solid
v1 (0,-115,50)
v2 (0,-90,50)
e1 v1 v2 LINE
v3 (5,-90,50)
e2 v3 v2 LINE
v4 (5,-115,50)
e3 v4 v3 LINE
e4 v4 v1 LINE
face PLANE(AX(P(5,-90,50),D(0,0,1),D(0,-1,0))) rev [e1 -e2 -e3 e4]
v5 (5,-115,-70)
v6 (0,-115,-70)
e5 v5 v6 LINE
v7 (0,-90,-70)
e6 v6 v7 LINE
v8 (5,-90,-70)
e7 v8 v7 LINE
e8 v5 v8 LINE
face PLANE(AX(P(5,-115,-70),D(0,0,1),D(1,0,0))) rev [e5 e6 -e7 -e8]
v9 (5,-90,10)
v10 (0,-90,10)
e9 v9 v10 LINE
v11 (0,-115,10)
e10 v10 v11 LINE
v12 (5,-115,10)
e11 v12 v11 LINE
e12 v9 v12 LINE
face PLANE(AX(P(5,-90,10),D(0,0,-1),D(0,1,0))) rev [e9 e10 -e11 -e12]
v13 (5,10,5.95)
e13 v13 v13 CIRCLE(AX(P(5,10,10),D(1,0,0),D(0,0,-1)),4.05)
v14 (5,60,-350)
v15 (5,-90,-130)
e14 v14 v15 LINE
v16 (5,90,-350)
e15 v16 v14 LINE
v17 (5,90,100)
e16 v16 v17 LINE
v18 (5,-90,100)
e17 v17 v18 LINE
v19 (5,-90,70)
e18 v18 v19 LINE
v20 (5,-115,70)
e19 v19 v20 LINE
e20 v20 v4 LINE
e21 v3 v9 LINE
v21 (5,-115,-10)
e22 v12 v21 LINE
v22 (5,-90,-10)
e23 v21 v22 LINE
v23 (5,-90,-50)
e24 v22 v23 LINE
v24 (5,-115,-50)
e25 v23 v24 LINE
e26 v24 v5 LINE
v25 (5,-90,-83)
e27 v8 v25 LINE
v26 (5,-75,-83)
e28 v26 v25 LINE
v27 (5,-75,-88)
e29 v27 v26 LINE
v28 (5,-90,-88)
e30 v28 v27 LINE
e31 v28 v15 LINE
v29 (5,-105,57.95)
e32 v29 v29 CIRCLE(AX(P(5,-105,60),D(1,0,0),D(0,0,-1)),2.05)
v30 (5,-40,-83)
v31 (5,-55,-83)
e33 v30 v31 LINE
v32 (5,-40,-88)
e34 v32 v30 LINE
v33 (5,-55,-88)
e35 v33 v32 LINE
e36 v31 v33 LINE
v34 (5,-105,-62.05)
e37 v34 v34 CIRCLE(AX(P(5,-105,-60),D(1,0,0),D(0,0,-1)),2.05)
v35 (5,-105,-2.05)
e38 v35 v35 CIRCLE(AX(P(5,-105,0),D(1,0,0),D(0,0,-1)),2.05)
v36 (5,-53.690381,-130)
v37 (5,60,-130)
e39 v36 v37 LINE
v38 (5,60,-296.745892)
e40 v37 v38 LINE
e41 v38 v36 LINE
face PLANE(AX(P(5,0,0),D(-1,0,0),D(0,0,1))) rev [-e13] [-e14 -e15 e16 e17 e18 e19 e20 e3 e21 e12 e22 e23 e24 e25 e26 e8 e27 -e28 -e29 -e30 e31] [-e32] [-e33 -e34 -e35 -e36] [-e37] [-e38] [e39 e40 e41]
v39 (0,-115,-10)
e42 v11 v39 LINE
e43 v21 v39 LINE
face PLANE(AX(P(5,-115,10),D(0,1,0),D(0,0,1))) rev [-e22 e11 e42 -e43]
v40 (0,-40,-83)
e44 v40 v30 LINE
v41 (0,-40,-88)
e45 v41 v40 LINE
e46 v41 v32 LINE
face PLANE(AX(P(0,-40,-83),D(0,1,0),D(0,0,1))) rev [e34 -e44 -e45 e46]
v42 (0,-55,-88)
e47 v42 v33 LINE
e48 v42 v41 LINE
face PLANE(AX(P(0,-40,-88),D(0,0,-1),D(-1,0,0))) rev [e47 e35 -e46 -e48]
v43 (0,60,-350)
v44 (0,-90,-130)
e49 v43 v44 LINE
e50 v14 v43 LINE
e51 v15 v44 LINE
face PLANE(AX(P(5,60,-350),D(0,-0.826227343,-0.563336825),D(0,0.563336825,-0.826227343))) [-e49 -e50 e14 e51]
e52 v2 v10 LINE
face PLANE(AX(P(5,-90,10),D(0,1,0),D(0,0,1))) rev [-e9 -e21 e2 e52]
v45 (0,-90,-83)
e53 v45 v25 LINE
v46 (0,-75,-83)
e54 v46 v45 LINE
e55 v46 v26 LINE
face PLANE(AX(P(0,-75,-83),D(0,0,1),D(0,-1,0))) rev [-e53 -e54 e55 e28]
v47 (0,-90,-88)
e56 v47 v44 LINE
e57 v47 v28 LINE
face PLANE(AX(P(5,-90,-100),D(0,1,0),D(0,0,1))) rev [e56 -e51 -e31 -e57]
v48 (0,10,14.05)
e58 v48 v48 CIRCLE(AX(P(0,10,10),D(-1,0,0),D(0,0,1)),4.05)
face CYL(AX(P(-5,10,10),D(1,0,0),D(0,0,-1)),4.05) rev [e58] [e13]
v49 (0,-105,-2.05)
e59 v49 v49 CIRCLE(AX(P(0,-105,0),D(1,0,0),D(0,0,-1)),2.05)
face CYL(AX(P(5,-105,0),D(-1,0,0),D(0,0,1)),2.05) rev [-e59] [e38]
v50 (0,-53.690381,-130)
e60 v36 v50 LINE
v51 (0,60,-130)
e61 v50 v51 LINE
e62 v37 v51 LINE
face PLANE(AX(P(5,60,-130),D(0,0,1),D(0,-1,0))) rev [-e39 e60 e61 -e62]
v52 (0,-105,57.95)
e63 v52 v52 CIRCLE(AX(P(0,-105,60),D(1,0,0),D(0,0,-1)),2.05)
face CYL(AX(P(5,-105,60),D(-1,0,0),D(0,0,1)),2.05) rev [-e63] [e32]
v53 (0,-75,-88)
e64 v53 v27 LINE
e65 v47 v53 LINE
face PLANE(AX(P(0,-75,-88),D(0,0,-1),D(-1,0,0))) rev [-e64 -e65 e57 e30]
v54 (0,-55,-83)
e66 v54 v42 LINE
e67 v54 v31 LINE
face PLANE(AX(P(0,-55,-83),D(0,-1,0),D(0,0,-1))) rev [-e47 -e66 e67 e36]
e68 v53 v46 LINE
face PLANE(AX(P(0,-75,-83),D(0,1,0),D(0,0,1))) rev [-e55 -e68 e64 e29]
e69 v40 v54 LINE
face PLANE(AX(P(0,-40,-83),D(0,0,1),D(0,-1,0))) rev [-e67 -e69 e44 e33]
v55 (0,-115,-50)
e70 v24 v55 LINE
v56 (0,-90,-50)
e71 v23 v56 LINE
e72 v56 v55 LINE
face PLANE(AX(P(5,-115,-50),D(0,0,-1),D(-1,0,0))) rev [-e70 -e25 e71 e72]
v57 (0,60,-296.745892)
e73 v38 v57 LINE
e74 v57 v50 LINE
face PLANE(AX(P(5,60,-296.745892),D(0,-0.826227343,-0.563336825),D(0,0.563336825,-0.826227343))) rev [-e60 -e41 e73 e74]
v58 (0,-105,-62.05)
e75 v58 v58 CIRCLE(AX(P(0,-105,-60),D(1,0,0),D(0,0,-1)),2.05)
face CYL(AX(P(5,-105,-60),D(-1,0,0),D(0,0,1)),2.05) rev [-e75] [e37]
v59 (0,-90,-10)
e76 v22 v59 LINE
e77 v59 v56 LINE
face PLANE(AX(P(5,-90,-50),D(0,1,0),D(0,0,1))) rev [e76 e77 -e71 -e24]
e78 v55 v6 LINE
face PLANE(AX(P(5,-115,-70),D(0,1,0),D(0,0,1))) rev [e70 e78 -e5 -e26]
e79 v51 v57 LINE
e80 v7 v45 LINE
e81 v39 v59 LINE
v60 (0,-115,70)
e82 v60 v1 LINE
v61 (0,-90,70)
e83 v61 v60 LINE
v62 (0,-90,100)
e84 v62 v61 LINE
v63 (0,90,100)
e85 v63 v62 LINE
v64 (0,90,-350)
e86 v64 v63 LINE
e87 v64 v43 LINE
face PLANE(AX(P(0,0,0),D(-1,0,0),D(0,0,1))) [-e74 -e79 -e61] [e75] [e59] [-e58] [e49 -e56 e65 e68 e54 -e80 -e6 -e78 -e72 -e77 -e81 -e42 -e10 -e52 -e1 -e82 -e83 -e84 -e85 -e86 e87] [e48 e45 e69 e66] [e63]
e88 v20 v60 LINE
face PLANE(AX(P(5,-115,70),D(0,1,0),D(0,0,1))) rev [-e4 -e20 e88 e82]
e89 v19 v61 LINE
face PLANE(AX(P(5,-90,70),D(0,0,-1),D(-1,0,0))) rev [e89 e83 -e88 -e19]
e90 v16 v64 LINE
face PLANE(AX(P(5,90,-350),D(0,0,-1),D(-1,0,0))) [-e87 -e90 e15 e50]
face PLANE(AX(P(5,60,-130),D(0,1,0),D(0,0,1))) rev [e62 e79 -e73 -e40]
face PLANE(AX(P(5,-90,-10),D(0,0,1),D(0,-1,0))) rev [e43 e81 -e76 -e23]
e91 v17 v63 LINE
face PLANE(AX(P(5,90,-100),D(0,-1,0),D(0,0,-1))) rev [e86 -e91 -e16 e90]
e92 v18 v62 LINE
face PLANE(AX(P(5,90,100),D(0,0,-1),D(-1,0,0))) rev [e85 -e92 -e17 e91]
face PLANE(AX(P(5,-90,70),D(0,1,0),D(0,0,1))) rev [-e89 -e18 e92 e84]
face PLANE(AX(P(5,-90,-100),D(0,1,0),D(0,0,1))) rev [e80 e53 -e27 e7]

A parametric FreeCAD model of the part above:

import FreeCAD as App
import Part
import Sketcher

V = App.Vector
Q = App.Units.Quantity


def add_polygon(sketch, points):
    """Adds a closed chain of lines whose ends are joined by coincident constraints."""
    first, n = sketch.GeometryCount, len(points)
    for a, b in zip(points, points[1:] + points[:1]):
        sketch.addGeometry(Part.LineSegment(App.Vector(*a, 0), App.Vector(*b, 0)), False)
    for i in range(n):
        sketch.addConstraint(Sketcher.Constraint("Coincident", first + i, 2, first + (i + 1) % n, 1))

doc = App.newDocument("Part")
params = doc.addObject("Spreadsheet::Sheet", "Params")
for row, (alias, value) in enumerate([
    ("sketch1_diameter", "4.1 mm"),
    ("sketch1_width", "25 mm"),
    ("sketch1_width2", "180 mm"),
    ("sketch1_height", "30 mm"),
    ("sketch1_height2", "20 mm"),
    ("pad1_length", "5 mm"),
    ("sketch2_diameter", "8.1 mm"),
    ("pocket1_length", "10 mm"),
    ("sketch3_width", "15 mm"),
    ("sketch3_height", "5 mm"),
    ("sketch4_width", "30 mm"),
    ("sketch4_width2", "180 mm"),
    ("sketch4_height", "250 mm"),
    ("pad2_length", "5 mm"),
], start=1):
    params.set(f"A{row}", alias)
    params.set(f"B{row}", "=" + value)
    params.setAlias(f"B{row}", alias)

body = doc.addObject("PartDesign::Body", "Body")

sketch1 = body.newObject("Sketcher::SketchObject", "Sketch")
sketch1.AttachmentSupport = (doc.getObject("YZ_Plane"), [""])
sketch1.MapMode = "FlatFace"
add_polygon(sketch1, [(-90, 100), (-90, 70), (-115, 70), (-115, 50), (-90, 50), (-90, 10), (-115, 10), (-115, -10), (-90, -10), (-90, -50), (-115, -50), (-115, -70), (-90, -70), (-90, -100), (90, -100), (90, 100)])
sketch1.addGeometry(Part.Circle(V(-105, -60, 0), V(0, 0, 1), 2), False)
sketch1.addGeometry(Part.Circle(V(-105, 0, 0), V(0, 0, 1), 2), False)
sketch1.addGeometry(Part.Circle(V(-105, 60, 0), V(0, 0, 1), 2), False)
sketch1.addConstraint(Sketcher.Constraint("Vertical", 0))
sketch1.addConstraint(Sketcher.Constraint("Horizontal", 1))
sketch1.addConstraint(Sketcher.Constraint("Vertical", 2))
sketch1.addConstraint(Sketcher.Constraint("Horizontal", 3))
sketch1.addConstraint(Sketcher.Constraint("Vertical", 4))
sketch1.addConstraint(Sketcher.Constraint("Horizontal", 5))
sketch1.addConstraint(Sketcher.Constraint("Vertical", 6))
sketch1.addConstraint(Sketcher.Constraint("Horizontal", 7))
sketch1.addConstraint(Sketcher.Constraint("Vertical", 8))
sketch1.addConstraint(Sketcher.Constraint("Horizontal", 9))
sketch1.addConstraint(Sketcher.Constraint("Vertical", 10))
sketch1.addConstraint(Sketcher.Constraint("Horizontal", 11))
sketch1.addConstraint(Sketcher.Constraint("Vertical", 12))
sketch1.addConstraint(Sketcher.Constraint("Horizontal", 13))
sketch1.addConstraint(Sketcher.Constraint("Vertical", 14))
sketch1.addConstraint(Sketcher.Constraint("Horizontal", 15))
sketch1.addConstraint(Sketcher.Constraint("Equal", 16, 17))
sketch1.addConstraint(Sketcher.Constraint("Equal", 17, 18))
sketch1.addConstraint(Sketcher.Constraint("Symmetric", 12, 2, 14, 2, -1, 1))
sketch1.addConstraint(Sketcher.Constraint("Symmetric", 16, 3, 18, 3, -1))
sketch1.addConstraint(Sketcher.Constraint("Symmetric", 4, 2, 7, 2, -1))
sketch1.addConstraint(Sketcher.Constraint("Symmetric", 2, 2, 9, 2, -1))
sketch1.addConstraint(Sketcher.Constraint("Symmetric", 0, 2, 11, 2, -1))
sketch1.addConstraint(Sketcher.Constraint("PointOnObject", 17, 3, -1))
sketch1.addConstraint(Sketcher.Constraint("Vertical", 16, 3, 17, 3))
sketch1.addConstraint(Sketcher.Constraint("Vertical", 0, 2, 3, 2))
sketch1.addConstraint(Sketcher.Constraint("Vertical", 2, 2, 5, 2))
sketch1.addConstraint(Sketcher.Constraint("Equal", 2, 6))
sketch1.addConstraint(Sketcher.Constraint("Diameter", 16, Q("4.1 mm")))
sketch1.addConstraint(Sketcher.Constraint("DistanceX", 1, 2, 1, 1, Q("25 mm")))
sketch1.addConstraint(Sketcher.Constraint("DistanceX", 13, 1, 13, 2, Q("180 mm")))
sketch1.addConstraint(Sketcher.Constraint("DistanceY", 0, 2, 0, 1, Q("30 mm")))
sketch1.addConstraint(Sketcher.Constraint("DistanceY", 2, 2, 2, 1, Q("20 mm")))
sketch1.addConstraint(Sketcher.Constraint("DistanceY", 4, 2, 4, 1, Q("40 mm")))
sketch1.addConstraint(Sketcher.Constraint("DistanceX", 16, 3, -1, 1, Q("105 mm")))
sketch1.addConstraint(Sketcher.Constraint("DistanceY", 16, 3, -1, 1, Q("60 mm")))
sketch1.setExpression("Constraints[44]", "Params.sketch1_diameter")
sketch1.setExpression("Constraints[45]", "Params.sketch1_width")
sketch1.setExpression("Constraints[46]", "Params.sketch1_width2")
sketch1.setExpression("Constraints[47]", "Params.sketch1_height")
sketch1.setExpression("Constraints[48]", "Params.sketch1_height2")
pad1 = body.newObject("PartDesign::Pad", "Pad")
pad1.Profile = sketch1
pad1.setExpression("Length", "Params.pad1_length")

sketch2 = body.newObject("Sketcher::SketchObject", "Sketch001")
sketch2.AttachmentSupport = (doc.getObject("YZ_Plane"), [""])
sketch2.MapMode = "FlatFace"
sketch2.AttachmentOffset = App.Placement(V(0, 0, 5), App.Rotation())
sketch2.addGeometry(Part.Circle(V(10, 10, 0), V(0, 0, 1), 4), False)
sketch2.addConstraint(Sketcher.Constraint("Diameter", 0, Q("8.1 mm")))
sketch2.addConstraint(Sketcher.Constraint("DistanceX", -1, 1, 0, 3, Q("10 mm")))
sketch2.addConstraint(Sketcher.Constraint("DistanceY", -1, 1, 0, 3, Q("10 mm")))
sketch2.setExpression("Constraints[0]", "Params.sketch2_diameter")
pocket1 = body.newObject("PartDesign::Pocket", "Pocket")
pocket1.Profile = sketch2
pocket1.setExpression("Length", "Params.pocket1_length")

sketch3 = body.newObject("Sketcher::SketchObject", "Sketch002")
sketch3.AttachmentSupport = (doc.getObject("YZ_Plane"), [""])
sketch3.MapMode = "FlatFace"
sketch3.AttachmentOffset = App.Placement(V(0, 0, 5), App.Rotation())
add_polygon(sketch3, [(-40, -83), (-55, -83), (-55, -88), (-40, -88)])
add_polygon(sketch3, [(-75, -83), (-90, -83), (-90, -88), (-75, -88)])
sketch3.addConstraint(Sketcher.Constraint("Horizontal", 0))
sketch3.addConstraint(Sketcher.Constraint("Vertical", 1))
sketch3.addConstraint(Sketcher.Constraint("Horizontal", 2))
sketch3.addConstraint(Sketcher.Constraint("Vertical", 3))
sketch3.addConstraint(Sketcher.Constraint("Horizontal", 4))
sketch3.addConstraint(Sketcher.Constraint("Vertical", 5))
sketch3.addConstraint(Sketcher.Constraint("Horizontal", 6))
sketch3.addConstraint(Sketcher.Constraint("Vertical", 7))
sketch3.addConstraint(Sketcher.Constraint("Horizontal", 3, 2, 4, 2))
sketch3.addConstraint(Sketcher.Constraint("Horizontal", 2, 2, 5, 2))
sketch3.addConstraint(Sketcher.Constraint("Equal", 2, 4))
sketch3.addConstraint(Sketcher.Constraint("DistanceX", 0, 2, 0, 1, Q("15 mm")))
sketch3.addConstraint(Sketcher.Constraint("DistanceY", 1, 2, 1, 1, Q("5 mm")))
sketch3.addConstraint(Sketcher.Constraint("DistanceX", 0, 2, -1, 1, Q("55 mm")))
sketch3.addConstraint(Sketcher.Constraint("DistanceY", 0, 2, -1, 1, Q("83 mm")))
sketch3.addConstraint(Sketcher.Constraint("DistanceX", 4, 2, -1, 1, Q("90 mm")))
sketch3.setExpression("Constraints[19]", "Params.sketch3_width")
sketch3.setExpression("Constraints[20]", "Params.sketch3_height")
pocket2 = body.newObject("PartDesign::Pocket", "Pocket001")
pocket2.Profile = sketch3
pocket2.Type = "ThroughAll"

sketch4 = body.newObject("Sketcher::SketchObject", "Sketch003")
sketch4.AttachmentSupport = (doc.getObject("YZ_Plane"), [""])
sketch4.MapMode = "FlatFace"
add_polygon(sketch4, [(90, -100), (90, -350), (60, -350), (-90, -130), (-90, -100)])
add_polygon(sketch4, [(60, -297), (60, -130), (-54, -130)])
sketch4.addConstraint(Sketcher.Constraint("Vertical", 0))
sketch4.addConstraint(Sketcher.Constraint("Horizontal", 1))
sketch4.addConstraint(Sketcher.Constraint("Vertical", 3))
sketch4.addConstraint(Sketcher.Constraint("Horizontal", 4))
sketch4.addConstraint(Sketcher.Constraint("Vertical", 5))
sketch4.addConstraint(Sketcher.Constraint("Horizontal", 6))
sketch4.addConstraint(Sketcher.Constraint("Parallel", 2, 7))
sketch4.addConstraint(Sketcher.Constraint("Horizontal", 2, 2, 5, 2))
sketch4.addConstraint(Sketcher.Constraint("Vertical", 1, 2, 5, 2))
sketch4.addConstraint(Sketcher.Constraint("Equal", 1, 3))
sketch4.addConstraint(Sketcher.Constraint("DistanceX", 1, 2, 1, 1, Q("30 mm")))
sketch4.addConstraint(Sketcher.Constraint("DistanceX", 4, 1, 4, 2, Q("180 mm")))
sketch4.addConstraint(Sketcher.Constraint("DistanceY", 0, 2, 0, 1, Q("250 mm")))
sketch4.addConstraint(Sketcher.Constraint("DistanceX", -1, 1, 0, 2, Q("90 mm")))
sketch4.addConstraint(Sketcher.Constraint("DistanceY", 0, 2, -1, 1, Q("350 mm")))
sketch4.addConstraint(Sketcher.Constraint("DistanceX", 6, 2, 6, 1, Q("113.690381 mm")))
sketch4.setExpression("Constraints[18]", "Params.sketch4_width")
sketch4.setExpression("Constraints[19]", "Params.sketch4_width2")
sketch4.setExpression("Constraints[20]", "Params.sketch4_height")
pad2 = body.newObject("PartDesign::Pad", "Pad001")
pad2.Profile = sketch4
pad2.setExpression("Length", "Params.pad2_length")

doc.recompute()
